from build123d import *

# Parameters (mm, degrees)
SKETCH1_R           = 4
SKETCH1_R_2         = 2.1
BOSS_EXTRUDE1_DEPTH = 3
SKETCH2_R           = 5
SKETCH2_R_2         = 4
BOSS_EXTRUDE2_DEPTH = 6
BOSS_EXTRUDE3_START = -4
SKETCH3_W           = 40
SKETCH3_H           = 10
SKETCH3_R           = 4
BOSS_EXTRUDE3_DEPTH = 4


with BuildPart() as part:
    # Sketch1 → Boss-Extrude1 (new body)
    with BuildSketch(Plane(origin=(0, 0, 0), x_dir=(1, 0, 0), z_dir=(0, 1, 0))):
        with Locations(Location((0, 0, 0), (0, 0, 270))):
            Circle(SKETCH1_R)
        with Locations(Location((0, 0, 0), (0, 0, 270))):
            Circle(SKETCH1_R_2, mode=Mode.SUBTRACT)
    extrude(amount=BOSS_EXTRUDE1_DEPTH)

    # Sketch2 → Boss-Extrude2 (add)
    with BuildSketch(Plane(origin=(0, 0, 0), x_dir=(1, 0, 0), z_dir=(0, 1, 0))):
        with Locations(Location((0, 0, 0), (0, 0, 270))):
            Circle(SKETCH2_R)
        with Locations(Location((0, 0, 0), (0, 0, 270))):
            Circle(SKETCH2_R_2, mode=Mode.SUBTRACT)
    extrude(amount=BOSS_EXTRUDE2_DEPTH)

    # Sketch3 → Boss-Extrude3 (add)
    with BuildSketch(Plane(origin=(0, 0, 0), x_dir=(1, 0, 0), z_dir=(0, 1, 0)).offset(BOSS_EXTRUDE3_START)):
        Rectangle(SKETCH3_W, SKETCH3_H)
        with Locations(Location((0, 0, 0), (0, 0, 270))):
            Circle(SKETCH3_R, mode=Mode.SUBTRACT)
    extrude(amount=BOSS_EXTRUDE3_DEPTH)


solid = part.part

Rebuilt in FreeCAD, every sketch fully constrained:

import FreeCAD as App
import Part
import Sketcher
Q = App.Units.Quantity

doc = App.newDocument("Part")
params = doc.addObject("Spreadsheet::Sheet", "Params")
for row, (alias, value) in enumerate([
    ("sketch1_diameter", "8 mm"),
    ("sketch1_diameter2", "4.2 mm"),
    ("pad1_length", "3 mm"),
    ("sketch2_diameter", "10 mm"),
    ("sketch2_diameter2", "8 mm"),
    ("pad2_length", "6 mm"),
    ("sketch3_diameter", "8 mm"),
    ("sketch3_width", "40 mm"),
    ("sketch3_height", "10 mm"),
    ("pad3_length", "4 mm"),
], start=1):
    params.set(f"A{row}", alias)
    params.set(f"B{row}", "=" + value)
    params.setAlias(f"B{row}", alias)

body = doc.addObject("PartDesign::Body", "Body")

sketch1 = body.newObject("Sketcher::SketchObject", "Sketch")
sketch1.AttachmentSupport = (doc.getObject("XZ_Plane"), [""])
sketch1.MapMode = "FlatFace"
sketch1.addGeometry(Part.Circle(App.Vector(0, 0, 0), App.Vector(0, 0, 1), 4), False)
sketch1.addGeometry(Part.Circle(App.Vector(0, 0, 0), App.Vector(0, 0, 1), 2.1), False)
sketch1.addConstraint(Sketcher.Constraint("Coincident", 0, 3, -1, 1))
sketch1.addConstraint(Sketcher.Constraint("Coincident", 1, 3, -1, 1))
sketch1.addConstraint(Sketcher.Constraint("Diameter", 0, Q("8 mm")))
sketch1.addConstraint(Sketcher.Constraint("Diameter", 1, Q("4.2 mm")))
sketch1.setExpression("Constraints[2]", "Params.sketch1_diameter")
sketch1.setExpression("Constraints[3]", "Params.sketch1_diameter2")
pad1 = body.newObject("PartDesign::Pad", "Pad")
pad1.Profile = sketch1
pad1.setExpression("Length", "Params.pad1_length")
pad1.Reversed = True

sketch2 = body.newObject("Sketcher::SketchObject", "Sketch001")
sketch2.AttachmentSupport = (doc.getObject("XZ_Plane"), [""])
sketch2.MapMode = "FlatFace"
sketch2.addGeometry(Part.Circle(App.Vector(0, 0, 0), App.Vector(0, 0, 1), 5), False)
sketch2.addGeometry(Part.Circle(App.Vector(0, 0, 0), App.Vector(0, 0, 1), 4), False)
sketch2.addConstraint(Sketcher.Constraint("Coincident", 0, 3, -1, 1))
sketch2.addConstraint(Sketcher.Constraint("Coincident", 1, 3, -1, 1))
sketch2.addConstraint(Sketcher.Constraint("Diameter", 0, Q("10 mm")))
sketch2.addConstraint(Sketcher.Constraint("Diameter", 1, Q("8 mm")))
sketch2.setExpression("Constraints[2]", "Params.sketch2_diameter")
sketch2.setExpression("Constraints[3]", "Params.sketch2_diameter2")
pad2 = body.newObject("PartDesign::Pad", "Pad001")
pad2.Profile = sketch2
pad2.setExpression("Length", "Params.pad2_length")
pad2.Reversed = True

sketch3 = body.newObject("Sketcher::SketchObject", "Sketch002")
sketch3.AttachmentSupport = (doc.getObject("XZ_Plane"), [""])
sketch3.MapMode = "FlatFace"
sketch3.AttachmentOffset = App.Placement(App.Vector(0, 0, 4), App.Rotation())
sketch3.addGeometry(Part.LineSegment(App.Vector(-20, -5, 0), App.Vector(-20, 5, 0)), False)
sketch3.addGeometry(Part.LineSegment(App.Vector(-20, 5, 0), App.Vector(20, 5, 0)), False)
sketch3.addGeometry(Part.LineSegment(App.Vector(20, 5, 0), App.Vector(20, -5, 0)), False)
sketch3.addGeometry(Part.LineSegment(App.Vector(20, -5, 0), App.Vector(-20, -5, 0)), False)
sketch3.addGeometry(Part.Circle(App.Vector(0, 0, 0), App.Vector(0, 0, 1), 4), False)
sketch3.addConstraint(Sketcher.Constraint("Coincident", 0, 2, 1, 1))
sketch3.addConstraint(Sketcher.Constraint("Coincident", 1, 2, 2, 1))
sketch3.addConstraint(Sketcher.Constraint("Coincident", 2, 2, 3, 1))
sketch3.addConstraint(Sketcher.Constraint("Coincident", 3, 2, 0, 1))
sketch3.addConstraint(Sketcher.Constraint("Vertical", 0))
sketch3.addConstraint(Sketcher.Constraint("Horizontal", 1))
sketch3.addConstraint(Sketcher.Constraint("Vertical", 2))
sketch3.addConstraint(Sketcher.Constraint("Horizontal", 3))
sketch3.addConstraint(Sketcher.Constraint("Coincident", 4, 3, -1, 1))
sketch3.addConstraint(Sketcher.Constraint("Symmetric", 0, 2, 2, 2, -1, 1))
sketch3.addConstraint(Sketcher.Constraint("Diameter", 4, Q("8 mm")))
sketch3.addConstraint(Sketcher.Constraint("DistanceX", 1, 1, 1, 2, Q("40 mm")))
sketch3.addConstraint(Sketcher.Constraint("DistanceY", 0, 1, 0, 2, Q("10 mm")))
sketch3.setExpression("Constraints[10]", "Params.sketch3_diameter")
sketch3.setExpression("Constraints[11]", "Params.sketch3_width")
sketch3.setExpression("Constraints[12]", "Params.sketch3_height")
pad3 = body.newObject("PartDesign::Pad", "Pad002")
pad3.Profile = sketch3
pad3.setExpression("Length", "Params.pad3_length")
pad3.Reversed = True

doc.recompute()
